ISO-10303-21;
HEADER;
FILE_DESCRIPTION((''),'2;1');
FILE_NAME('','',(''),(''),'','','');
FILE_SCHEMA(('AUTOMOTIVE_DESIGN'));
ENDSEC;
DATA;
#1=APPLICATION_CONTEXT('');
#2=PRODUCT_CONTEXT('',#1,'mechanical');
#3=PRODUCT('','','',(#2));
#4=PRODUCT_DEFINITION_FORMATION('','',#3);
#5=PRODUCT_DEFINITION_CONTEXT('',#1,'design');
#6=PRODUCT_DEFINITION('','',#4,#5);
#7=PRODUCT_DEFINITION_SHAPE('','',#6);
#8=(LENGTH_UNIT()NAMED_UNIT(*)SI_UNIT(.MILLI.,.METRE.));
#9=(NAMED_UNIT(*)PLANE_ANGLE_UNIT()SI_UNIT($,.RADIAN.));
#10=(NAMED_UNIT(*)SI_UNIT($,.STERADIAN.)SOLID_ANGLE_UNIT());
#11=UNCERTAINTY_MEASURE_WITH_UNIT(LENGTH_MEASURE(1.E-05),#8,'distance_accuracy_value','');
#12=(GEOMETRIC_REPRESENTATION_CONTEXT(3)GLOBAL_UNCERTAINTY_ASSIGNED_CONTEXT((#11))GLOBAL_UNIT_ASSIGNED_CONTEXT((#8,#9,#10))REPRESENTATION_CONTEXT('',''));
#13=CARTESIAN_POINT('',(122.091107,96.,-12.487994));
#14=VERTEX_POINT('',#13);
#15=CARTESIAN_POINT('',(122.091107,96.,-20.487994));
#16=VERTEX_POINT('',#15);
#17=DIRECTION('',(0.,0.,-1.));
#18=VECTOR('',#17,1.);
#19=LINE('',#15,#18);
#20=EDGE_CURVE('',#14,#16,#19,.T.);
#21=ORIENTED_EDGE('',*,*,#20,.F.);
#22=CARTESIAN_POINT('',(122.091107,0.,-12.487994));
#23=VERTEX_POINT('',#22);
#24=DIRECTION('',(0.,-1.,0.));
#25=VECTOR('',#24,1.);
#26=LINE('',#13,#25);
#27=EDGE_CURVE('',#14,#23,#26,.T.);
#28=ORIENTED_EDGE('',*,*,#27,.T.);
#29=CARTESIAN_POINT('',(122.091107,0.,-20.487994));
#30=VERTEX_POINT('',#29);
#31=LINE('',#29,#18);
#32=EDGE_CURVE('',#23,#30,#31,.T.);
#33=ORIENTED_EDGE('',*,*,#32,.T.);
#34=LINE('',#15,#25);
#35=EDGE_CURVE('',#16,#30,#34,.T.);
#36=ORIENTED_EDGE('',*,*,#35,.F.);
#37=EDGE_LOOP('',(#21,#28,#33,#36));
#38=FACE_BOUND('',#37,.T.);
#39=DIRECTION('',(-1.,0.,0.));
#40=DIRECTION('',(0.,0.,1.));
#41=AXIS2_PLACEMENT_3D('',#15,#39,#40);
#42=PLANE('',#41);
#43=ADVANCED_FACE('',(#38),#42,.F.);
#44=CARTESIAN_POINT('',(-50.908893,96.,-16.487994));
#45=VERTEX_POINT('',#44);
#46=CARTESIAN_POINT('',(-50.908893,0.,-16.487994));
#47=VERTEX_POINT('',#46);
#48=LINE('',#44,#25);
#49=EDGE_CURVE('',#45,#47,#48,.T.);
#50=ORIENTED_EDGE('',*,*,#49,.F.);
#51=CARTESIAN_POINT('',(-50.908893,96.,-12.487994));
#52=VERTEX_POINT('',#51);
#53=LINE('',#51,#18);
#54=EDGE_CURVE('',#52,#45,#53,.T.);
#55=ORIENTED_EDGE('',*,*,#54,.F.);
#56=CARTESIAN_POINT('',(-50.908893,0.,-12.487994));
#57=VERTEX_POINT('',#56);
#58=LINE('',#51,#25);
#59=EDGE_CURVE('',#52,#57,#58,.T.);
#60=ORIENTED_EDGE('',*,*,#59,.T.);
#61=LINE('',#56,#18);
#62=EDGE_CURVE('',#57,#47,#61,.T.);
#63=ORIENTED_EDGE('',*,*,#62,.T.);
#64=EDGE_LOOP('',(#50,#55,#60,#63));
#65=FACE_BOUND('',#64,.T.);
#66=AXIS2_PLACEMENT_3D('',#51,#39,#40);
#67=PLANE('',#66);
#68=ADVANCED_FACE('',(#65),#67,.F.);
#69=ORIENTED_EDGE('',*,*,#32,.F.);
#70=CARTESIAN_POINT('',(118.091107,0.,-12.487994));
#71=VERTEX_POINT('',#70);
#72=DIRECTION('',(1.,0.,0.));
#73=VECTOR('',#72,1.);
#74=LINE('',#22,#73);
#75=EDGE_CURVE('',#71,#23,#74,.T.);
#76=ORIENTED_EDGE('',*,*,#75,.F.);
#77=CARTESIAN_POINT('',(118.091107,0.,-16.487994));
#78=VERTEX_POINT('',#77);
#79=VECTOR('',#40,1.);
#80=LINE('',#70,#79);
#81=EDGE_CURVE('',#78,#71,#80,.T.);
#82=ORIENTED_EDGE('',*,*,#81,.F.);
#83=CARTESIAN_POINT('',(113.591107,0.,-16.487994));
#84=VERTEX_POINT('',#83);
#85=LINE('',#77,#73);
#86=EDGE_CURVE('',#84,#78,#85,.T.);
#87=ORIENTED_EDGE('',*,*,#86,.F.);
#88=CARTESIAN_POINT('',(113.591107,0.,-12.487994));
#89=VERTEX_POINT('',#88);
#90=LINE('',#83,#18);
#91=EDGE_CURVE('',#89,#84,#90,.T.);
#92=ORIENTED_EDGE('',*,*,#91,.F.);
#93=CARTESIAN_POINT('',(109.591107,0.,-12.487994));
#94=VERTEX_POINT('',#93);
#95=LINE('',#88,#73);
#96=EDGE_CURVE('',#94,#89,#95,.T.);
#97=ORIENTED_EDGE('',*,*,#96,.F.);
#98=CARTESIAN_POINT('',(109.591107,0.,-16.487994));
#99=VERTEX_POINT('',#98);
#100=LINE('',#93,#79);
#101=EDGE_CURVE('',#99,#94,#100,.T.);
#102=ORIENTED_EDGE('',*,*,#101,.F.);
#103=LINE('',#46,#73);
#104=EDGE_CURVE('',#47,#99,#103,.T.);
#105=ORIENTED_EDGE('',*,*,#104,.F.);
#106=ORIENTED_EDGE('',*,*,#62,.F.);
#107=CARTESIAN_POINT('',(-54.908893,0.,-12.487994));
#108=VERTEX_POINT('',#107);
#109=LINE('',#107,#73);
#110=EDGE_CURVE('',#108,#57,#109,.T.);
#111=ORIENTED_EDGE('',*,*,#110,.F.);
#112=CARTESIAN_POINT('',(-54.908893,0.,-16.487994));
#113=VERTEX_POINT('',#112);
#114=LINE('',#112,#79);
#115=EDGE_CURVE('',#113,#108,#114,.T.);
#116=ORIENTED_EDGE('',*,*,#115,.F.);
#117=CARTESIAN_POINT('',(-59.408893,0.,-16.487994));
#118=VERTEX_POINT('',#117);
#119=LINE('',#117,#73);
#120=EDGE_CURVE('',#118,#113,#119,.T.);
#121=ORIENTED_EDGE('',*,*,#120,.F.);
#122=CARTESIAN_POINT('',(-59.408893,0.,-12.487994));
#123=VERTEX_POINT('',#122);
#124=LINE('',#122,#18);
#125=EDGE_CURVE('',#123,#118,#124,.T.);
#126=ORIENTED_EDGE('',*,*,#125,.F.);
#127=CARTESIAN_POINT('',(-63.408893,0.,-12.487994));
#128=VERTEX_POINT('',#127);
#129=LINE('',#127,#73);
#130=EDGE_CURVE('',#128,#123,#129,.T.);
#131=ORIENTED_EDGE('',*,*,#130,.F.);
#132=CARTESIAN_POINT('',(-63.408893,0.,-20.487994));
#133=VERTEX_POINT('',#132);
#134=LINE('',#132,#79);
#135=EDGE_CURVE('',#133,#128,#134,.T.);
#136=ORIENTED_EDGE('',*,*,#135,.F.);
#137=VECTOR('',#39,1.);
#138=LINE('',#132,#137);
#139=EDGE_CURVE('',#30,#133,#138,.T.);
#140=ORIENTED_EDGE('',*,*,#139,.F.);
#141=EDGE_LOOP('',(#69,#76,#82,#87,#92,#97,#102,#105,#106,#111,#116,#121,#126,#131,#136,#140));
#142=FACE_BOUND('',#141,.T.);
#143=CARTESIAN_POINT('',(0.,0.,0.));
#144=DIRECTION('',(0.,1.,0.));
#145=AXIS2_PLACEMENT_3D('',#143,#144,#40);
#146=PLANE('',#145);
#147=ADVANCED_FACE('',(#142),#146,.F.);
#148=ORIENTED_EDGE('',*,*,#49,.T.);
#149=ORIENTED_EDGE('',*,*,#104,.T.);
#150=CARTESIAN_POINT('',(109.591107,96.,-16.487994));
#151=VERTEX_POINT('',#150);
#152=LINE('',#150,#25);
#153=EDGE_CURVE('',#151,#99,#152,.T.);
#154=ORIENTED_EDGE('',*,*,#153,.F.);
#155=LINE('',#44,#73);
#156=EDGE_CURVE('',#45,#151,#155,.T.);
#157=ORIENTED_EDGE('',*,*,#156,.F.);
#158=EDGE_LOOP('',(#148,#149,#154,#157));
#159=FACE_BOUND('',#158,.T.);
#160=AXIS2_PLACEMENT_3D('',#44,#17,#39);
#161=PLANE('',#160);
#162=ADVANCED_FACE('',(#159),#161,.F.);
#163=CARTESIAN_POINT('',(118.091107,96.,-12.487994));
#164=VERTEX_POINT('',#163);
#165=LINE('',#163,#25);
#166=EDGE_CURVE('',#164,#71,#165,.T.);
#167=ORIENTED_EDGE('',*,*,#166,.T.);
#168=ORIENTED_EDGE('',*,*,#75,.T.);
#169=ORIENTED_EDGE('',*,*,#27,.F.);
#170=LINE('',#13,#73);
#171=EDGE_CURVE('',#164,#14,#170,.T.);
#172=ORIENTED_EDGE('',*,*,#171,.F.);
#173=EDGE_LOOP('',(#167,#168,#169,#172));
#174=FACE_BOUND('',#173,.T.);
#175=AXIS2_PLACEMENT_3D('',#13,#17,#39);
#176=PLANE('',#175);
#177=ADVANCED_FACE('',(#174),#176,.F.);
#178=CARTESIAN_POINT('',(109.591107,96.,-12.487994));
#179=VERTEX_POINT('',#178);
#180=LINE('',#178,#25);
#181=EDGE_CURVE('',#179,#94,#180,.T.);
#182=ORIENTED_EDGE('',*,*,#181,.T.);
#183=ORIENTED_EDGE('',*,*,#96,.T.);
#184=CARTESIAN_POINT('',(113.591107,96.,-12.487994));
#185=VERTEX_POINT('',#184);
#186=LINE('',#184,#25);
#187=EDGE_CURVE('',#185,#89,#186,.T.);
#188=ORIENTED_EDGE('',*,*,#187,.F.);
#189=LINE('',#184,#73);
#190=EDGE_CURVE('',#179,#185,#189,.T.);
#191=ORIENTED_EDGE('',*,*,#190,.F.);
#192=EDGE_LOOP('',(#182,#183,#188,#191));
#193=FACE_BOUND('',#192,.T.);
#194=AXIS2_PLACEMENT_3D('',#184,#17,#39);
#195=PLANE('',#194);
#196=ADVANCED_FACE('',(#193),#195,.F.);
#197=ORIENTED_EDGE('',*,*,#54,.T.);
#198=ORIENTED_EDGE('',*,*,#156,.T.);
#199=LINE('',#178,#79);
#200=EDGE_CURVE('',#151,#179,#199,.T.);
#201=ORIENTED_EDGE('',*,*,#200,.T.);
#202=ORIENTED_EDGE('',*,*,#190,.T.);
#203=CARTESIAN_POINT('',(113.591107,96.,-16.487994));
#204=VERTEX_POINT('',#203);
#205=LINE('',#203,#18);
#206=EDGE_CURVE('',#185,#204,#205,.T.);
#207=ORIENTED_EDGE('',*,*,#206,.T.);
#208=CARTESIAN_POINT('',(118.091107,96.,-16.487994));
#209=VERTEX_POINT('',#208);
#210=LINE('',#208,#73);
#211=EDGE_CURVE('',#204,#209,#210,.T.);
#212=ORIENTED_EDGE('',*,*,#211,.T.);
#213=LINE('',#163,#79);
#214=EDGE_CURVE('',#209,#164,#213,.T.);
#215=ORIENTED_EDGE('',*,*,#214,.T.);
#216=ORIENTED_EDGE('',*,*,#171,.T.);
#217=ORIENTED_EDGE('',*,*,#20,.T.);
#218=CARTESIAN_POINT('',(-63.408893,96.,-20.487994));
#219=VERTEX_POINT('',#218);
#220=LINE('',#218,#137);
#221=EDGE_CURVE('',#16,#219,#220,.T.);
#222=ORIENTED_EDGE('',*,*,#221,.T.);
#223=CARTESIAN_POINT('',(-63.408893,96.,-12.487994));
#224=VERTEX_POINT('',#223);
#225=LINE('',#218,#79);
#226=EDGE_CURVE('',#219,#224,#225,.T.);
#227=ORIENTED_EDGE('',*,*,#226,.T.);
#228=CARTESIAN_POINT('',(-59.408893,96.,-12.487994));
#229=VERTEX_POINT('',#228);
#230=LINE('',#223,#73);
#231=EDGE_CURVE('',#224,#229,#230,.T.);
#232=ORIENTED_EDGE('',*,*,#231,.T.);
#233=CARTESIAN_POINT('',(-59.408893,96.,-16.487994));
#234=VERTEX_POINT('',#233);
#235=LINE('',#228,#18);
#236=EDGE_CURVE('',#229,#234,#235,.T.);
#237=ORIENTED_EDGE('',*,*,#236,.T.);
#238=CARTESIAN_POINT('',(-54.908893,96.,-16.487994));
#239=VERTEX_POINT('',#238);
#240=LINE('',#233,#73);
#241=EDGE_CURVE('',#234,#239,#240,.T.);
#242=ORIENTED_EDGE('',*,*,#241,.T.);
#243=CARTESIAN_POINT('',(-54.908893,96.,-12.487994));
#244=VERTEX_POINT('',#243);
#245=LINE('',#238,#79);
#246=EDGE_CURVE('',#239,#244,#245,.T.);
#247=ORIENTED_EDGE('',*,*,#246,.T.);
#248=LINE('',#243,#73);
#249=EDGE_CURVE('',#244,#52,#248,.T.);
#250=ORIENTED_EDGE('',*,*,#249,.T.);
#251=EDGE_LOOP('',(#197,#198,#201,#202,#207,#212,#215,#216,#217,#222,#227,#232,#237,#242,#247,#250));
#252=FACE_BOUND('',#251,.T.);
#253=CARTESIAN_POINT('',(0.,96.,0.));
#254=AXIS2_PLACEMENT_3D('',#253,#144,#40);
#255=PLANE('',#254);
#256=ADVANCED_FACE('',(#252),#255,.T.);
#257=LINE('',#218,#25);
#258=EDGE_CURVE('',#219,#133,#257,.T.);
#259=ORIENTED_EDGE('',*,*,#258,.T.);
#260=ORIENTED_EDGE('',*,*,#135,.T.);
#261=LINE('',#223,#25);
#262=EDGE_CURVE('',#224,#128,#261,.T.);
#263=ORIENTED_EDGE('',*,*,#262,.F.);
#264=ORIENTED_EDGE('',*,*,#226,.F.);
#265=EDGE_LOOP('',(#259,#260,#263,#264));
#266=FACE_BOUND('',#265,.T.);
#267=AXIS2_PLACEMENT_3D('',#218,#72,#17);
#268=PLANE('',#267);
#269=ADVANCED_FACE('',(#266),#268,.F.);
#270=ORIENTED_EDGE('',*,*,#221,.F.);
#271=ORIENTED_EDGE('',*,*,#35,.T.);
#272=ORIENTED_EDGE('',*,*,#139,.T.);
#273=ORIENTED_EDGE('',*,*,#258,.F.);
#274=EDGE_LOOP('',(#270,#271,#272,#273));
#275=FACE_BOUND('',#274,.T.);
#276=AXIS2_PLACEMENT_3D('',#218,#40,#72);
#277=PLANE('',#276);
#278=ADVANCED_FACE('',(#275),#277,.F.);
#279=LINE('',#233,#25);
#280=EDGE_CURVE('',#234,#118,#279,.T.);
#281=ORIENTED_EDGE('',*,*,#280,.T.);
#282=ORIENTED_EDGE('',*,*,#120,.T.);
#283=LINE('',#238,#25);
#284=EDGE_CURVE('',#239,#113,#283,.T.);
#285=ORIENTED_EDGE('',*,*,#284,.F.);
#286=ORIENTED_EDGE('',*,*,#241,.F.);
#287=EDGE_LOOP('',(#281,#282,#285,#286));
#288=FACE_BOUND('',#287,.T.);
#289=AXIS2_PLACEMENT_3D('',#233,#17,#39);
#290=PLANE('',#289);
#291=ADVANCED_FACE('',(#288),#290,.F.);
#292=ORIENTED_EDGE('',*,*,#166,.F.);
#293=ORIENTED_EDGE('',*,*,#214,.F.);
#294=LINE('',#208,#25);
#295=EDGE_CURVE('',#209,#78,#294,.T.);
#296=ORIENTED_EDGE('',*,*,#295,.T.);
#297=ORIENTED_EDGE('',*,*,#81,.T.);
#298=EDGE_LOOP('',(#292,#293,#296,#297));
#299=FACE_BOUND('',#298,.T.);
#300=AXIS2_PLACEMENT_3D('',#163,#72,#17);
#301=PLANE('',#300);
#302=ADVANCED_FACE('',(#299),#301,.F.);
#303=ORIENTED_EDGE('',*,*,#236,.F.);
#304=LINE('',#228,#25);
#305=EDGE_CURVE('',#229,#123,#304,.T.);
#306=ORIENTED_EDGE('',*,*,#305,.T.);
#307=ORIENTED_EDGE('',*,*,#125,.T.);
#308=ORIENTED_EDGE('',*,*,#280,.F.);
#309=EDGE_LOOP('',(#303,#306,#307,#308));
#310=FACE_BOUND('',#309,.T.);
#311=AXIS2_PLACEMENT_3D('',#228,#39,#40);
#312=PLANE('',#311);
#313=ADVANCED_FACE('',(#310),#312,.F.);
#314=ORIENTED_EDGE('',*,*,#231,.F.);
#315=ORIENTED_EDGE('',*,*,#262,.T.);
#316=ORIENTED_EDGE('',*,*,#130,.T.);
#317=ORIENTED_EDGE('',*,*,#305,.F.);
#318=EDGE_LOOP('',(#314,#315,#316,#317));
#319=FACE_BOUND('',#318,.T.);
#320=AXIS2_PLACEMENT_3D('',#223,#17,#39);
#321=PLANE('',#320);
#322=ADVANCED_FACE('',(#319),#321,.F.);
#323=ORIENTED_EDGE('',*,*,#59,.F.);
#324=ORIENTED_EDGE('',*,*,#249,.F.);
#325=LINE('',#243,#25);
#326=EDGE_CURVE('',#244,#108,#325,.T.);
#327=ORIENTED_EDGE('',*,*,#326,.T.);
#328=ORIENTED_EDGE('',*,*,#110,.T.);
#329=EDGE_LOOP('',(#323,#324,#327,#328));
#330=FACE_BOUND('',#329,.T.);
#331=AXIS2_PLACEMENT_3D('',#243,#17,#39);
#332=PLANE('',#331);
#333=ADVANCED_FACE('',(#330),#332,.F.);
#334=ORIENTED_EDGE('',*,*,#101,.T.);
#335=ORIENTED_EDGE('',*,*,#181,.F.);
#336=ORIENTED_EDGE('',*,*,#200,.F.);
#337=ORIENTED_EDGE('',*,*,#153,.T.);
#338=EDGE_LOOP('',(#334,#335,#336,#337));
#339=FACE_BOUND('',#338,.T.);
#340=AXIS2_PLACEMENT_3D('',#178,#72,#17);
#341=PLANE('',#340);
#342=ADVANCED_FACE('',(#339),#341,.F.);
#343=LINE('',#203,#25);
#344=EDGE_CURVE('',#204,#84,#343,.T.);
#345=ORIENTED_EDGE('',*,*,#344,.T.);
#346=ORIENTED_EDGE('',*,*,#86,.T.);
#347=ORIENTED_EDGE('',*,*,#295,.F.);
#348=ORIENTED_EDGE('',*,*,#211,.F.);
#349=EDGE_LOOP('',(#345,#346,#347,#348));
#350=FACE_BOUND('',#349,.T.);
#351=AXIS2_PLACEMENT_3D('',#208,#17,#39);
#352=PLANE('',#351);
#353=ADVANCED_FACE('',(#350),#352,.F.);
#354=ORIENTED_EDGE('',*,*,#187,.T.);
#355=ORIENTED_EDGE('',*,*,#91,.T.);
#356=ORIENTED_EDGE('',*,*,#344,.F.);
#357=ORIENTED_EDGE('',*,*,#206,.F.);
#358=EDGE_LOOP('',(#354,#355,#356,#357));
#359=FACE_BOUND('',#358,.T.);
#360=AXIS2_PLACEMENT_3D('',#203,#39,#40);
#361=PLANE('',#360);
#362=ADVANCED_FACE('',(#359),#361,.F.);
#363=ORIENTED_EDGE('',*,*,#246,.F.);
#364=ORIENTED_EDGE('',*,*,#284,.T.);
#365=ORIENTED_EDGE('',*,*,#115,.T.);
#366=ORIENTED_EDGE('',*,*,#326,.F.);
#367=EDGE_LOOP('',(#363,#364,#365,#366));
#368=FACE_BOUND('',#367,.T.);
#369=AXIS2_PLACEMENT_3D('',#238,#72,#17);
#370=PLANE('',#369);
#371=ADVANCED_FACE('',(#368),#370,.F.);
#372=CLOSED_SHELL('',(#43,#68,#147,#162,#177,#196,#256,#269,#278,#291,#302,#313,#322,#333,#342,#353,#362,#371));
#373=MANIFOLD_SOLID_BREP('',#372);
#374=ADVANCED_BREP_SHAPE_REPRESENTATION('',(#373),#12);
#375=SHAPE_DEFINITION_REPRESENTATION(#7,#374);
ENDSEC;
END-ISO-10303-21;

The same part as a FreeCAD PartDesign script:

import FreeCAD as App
import Part
import Sketcher

V = App.Vector

doc = App.newDocument("Part")
body = doc.addObject("PartDesign::Body", "Body")

# Sketch on XZ plane
sketch1 = body.newObject("Sketcher::SketchObject", "Sketch")
sketch1.AttachmentSupport = (doc.getObject("XZ_Plane"), [""])
sketch1.MapMode = "FlatFace"
sketch1.addGeometry(Part.LineSegment(V(122.1, -20.5, 0), V(-63.4, -20.5, 0)), False)
sketch1.addGeometry(Part.LineSegment(V(-63.4, -20.5, 0), V(-63.4, -12.5, 0)), False)
sketch1.addGeometry(Part.LineSegment(V(-63.4, -12.5, 0), V(-59.4, -12.5, 0)), False)
sketch1.addGeometry(Part.LineSegment(V(-59.4, -12.5, 0), V(-59.4, -16.5, 0)), False)
sketch1.addGeometry(Part.LineSegment(V(-59.4, -16.5, 0), V(-54.9, -16.5, 0)), False)
sketch1.addGeometry(Part.LineSegment(V(-54.9, -16.5, 0), V(-54.9, -12.5, 0)), False)
sketch1.addGeometry(Part.LineSegment(V(-54.9, -12.5, 0), V(-50.9, -12.5, 0)), False)
sketch1.addGeometry(Part.LineSegment(V(-50.9, -12.5, 0), V(-50.9, -16.5, 0)), False)
sketch1.addGeometry(Part.LineSegment(V(-50.9, -16.5, 0), V(109.6, -16.5, 0)), False)
sketch1.addGeometry(Part.LineSegment(V(109.6, -16.5, 0), V(109.6, -12.5, 0)), False)
sketch1.addGeometry(Part.LineSegment(V(109.6, -12.5, 0), V(113.6, -12.5, 0)), False)
sketch1.addGeometry(Part.LineSegment(V(113.6, -12.5, 0), V(113.6, -16.5, 0)), False)
sketch1.addGeometry(Part.LineSegment(V(113.6, -16.5, 0), V(118.1, -16.5, 0)), False)
sketch1.addGeometry(Part.LineSegment(V(118.1, -16.5, 0), V(118.1, -12.5, 0)), False)
sketch1.addGeometry(Part.LineSegment(V(118.1, -12.5, 0), V(122.1, -12.5, 0)), False)
sketch1.addGeometry(Part.LineSegment(V(122.1, -12.5, 0), V(122.1, -20.5, 0)), False)
sketch1.addConstraint(Sketcher.Constraint("Coincident", 0, 2, 1, 1))
sketch1.addConstraint(Sketcher.Constraint("Coincident", 1, 2, 2, 1))
sketch1.addConstraint(Sketcher.Constraint("Coincident", 2, 2, 3, 1))
sketch1.addConstraint(Sketcher.Constraint("Coincident", 3, 2, 4, 1))
sketch1.addConstraint(Sketcher.Constraint("Coincident", 4, 2, 5, 1))
sketch1.addConstraint(Sketcher.Constraint("Coincident", 5, 2, 6, 1))
sketch1.addConstraint(Sketcher.Constraint("Coincident", 6, 2, 7, 1))
sketch1.addConstraint(Sketcher.Constraint("Coincident", 7, 2, 8, 1))
sketch1.addConstraint(Sketcher.Constraint("Coincident", 8, 2, 9, 1))
sketch1.addConstraint(Sketcher.Constraint("Coincident", 9, 2, 10, 1))
sketch1.addConstraint(Sketcher.Constraint("Coincident", 10, 2, 11, 1))
sketch1.addConstraint(Sketcher.Constraint("Coincident", 11, 2, 12, 1))
sketch1.addConstraint(Sketcher.Constraint("Coincident", 12, 2, 13, 1))
sketch1.addConstraint(Sketcher.Constraint("Coincident", 13, 2, 14, 1))
sketch1.addConstraint(Sketcher.Constraint("Coincident", 14, 2, 15, 1))
sketch1.addConstraint(Sketcher.Constraint("Coincident", 15, 2, 0, 1))
sketch1.addConstraint(Sketcher.Constraint("Horizontal", 0))
sketch1.addConstraint(Sketcher.Constraint("Vertical", 1))
sketch1.addConstraint(Sketcher.Constraint("Horizontal", 2))
sketch1.addConstraint(Sketcher.Constraint("Vertical", 3))
sketch1.addConstraint(Sketcher.Constraint("Horizontal", 4))
sketch1.addConstraint(Sketcher.Constraint("Vertical", 5))
sketch1.addConstraint(Sketcher.Constraint("Horizontal", 6))
sketch1.addConstraint(Sketcher.Constraint("Vertical", 7))
sketch1.addConstraint(Sketcher.Constraint("Horizontal", 8))
sketch1.addConstraint(Sketcher.Constraint("Vertical", 9))
sketch1.addConstraint(Sketcher.Constraint("Horizontal", 10))
sketch1.addConstraint(Sketcher.Constraint("Vertical", 11))
sketch1.addConstraint(Sketcher.Constraint("Horizontal", 12))
sketch1.addConstraint(Sketcher.Constraint("Vertical", 13))
sketch1.addConstraint(Sketcher.Constraint("Horizontal", 14))
sketch1.addConstraint(Sketcher.Constraint("Vertical", 15))
sketch1.addConstraint(Sketcher.Constraint("Horizontal", 2, 2, 5, 2))
sketch1.addConstraint(Sketcher.Constraint("Horizontal", 4, 2, 7, 2))
sketch1.addConstraint(Sketcher.Constraint("Horizontal", 6, 2, 9, 2))
sketch1.addConstraint(Sketcher.Constraint("Horizontal", 8, 2, 11, 2))
sketch1.addConstraint(Sketcher.Constraint("Horizontal", 10, 2, 13, 2))
sketch1.addConstraint(Sketcher.Constraint("Equal", 2, 6))
sketch1.addConstraint(Sketcher.Constraint("Equal", 6, 10))
sketch1.addConstraint(Sketcher.Constraint("Equal", 4, 12))
sketch1.addConstraint(Sketcher.Constraint("Equal", 10, 14))
sketch1.addConstraint(Sketcher.Constraint("Equal", 14, 3))
sketch1.addConstraint(Sketcher.Constraint("DistanceX", 2, 1, 2, 2, 4.0))
sketch1.addConstraint(Sketcher.Constraint("DistanceY", 1, 1, 1, 2, 8.0))
sketch1.addConstraint(Sketcher.Constraint("DistanceX", 0, 2, 0, 1, 185.5))
sketch1.addConstraint(Sketcher.Constraint("DistanceX", 4, 1, 4, 2, 4.5))
sketch1.addConstraint(Sketcher.Constraint("DistanceX", 0, 2, -1, 1, 63.408893))
sketch1.addConstraint(Sketcher.Constraint("DistanceY", 0, 2, -1, 1, 20.487994))
pad1 = body.newObject("PartDesign::Pad", "Pad")
pad1.Profile = sketch1
pad1.Length = 96
pad1.Reversed = True

doc.recompute()
